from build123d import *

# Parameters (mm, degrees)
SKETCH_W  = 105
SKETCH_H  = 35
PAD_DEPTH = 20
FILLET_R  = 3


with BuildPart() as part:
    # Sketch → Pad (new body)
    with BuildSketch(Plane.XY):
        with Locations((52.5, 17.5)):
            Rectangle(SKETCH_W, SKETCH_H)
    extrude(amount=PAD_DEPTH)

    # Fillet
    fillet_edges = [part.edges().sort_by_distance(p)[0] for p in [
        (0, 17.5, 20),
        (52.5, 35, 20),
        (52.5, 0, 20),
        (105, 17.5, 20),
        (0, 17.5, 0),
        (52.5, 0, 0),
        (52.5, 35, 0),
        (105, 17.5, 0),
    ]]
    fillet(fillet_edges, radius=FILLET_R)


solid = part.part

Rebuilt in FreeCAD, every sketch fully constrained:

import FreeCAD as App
import Part
import Sketcher
Q = App.Units.Quantity


def edges_at(feature, points):
    """Names of the edges that pass closest to the given points."""
    edges = feature.Shape.Edges
    near = lambda p: min(range(len(edges)), key=lambda i: edges[i].distToShape(Part.Vertex(*p))[0])
    return sorted({f"Edge{near(p) + 1}" for p in points})

doc = App.newDocument("Part")
body = doc.addObject("PartDesign::Body", "Body")

sketch1 = body.newObject("Sketcher::SketchObject", "Sketch")
sketch1.AttachmentSupport = (doc.getObject("XY_Plane"), [""])
sketch1.MapMode = "FlatFace"
sketch1.addGeometry([
    Part.LineSegment(App.Vector(0, 35, 0), App.Vector(0, 0, 0)),
    Part.LineSegment(App.Vector(0, 0, 0), App.Vector(105, 0, 0)),
    Part.LineSegment(App.Vector(105, 0, 0), App.Vector(105, 35, 0)),
    Part.LineSegment(App.Vector(105, 35, 0), App.Vector(0, 35, 0)),
], False)
sketch1.addConstraint([
    Sketcher.Constraint("Coincident", 0, 2, 1, 1),
    Sketcher.Constraint("Coincident", 1, 2, 2, 1),
    Sketcher.Constraint("Coincident", 2, 2, 3, 1),
    Sketcher.Constraint("Coincident", 3, 2, 0, 1),
    Sketcher.Constraint("Vertical", 0),
    Sketcher.Constraint("Horizontal", 1),
    Sketcher.Constraint("Vertical", 2),
    Sketcher.Constraint("Horizontal", 3),
    Sketcher.Constraint("Coincident", 0, 2, -1, 1),
    Sketcher.Constraint("DistanceX", 1, 1, 1, 2, Q("105 mm")),
    Sketcher.Constraint("DistanceY", 0, 2, 0, 1, Q("35 mm")),
])
pad1 = body.newObject("PartDesign::Pad", "Pad")
pad1.Profile = sketch1
pad1.Length = 20
doc.recompute()

fillet = body.newObject("PartDesign::Fillet", "Fillet")
fillet.Base = (pad1, edges_at(pad1, [
    (0, 17.5, 20),
    (52.5, 35, 20),
    (52.5, 0, 20),
    (105, 17.5, 20),
    (0, 17.5, 0),
    (52.5, 0, 0),
    (52.5, 35, 0),
    (105, 17.5, 0),
]))
fillet.Radius = 3

doc.recompute()
